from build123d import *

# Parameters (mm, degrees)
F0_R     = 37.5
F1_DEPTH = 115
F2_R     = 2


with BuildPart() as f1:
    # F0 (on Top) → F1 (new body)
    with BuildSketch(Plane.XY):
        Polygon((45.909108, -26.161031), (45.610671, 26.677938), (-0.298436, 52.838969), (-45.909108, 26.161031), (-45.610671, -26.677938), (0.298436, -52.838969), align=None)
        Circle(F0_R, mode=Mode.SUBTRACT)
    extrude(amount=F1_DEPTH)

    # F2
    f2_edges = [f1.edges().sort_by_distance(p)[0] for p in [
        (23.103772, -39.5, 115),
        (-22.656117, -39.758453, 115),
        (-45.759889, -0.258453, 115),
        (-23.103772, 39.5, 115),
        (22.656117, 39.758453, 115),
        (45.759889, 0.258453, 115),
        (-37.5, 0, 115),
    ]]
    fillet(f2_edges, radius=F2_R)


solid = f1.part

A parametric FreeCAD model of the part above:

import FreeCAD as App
import Part
import Sketcher
from FreeCAD import Vector


def edges_at(feature, points):
    """Names of the edges that pass closest to the given points."""
    edges = feature.Shape.Edges
    near = lambda p: min(range(len(edges)), key=lambda i: edges[i].distToShape(Part.Vertex(*p))[0])
    return sorted({f"Edge{near(p) + 1}" for p in points})

doc = App.newDocument("Part")
body = doc.addObject("PartDesign::Body", "Body")

sketch1 = doc.addObject("Sketcher::SketchObject", "Sketch")
body.addObject(sketch1)
sketch1.AttachmentSupport = (doc.XY_Plane, [""])
sketch1.MapMode = "FlatFace"
sketch1.addGeometry(Part.LineSegment(Vector(46, -26, 0), Vector(46, 27, 0)), False)
sketch1.addGeometry(Part.LineSegment(Vector(46, 27, 0), Vector(0, 53, 0)), False)
sketch1.addGeometry(Part.LineSegment(Vector(0, 53, 0), Vector(-46, 26, 0)), False)
sketch1.addGeometry(Part.LineSegment(Vector(-46, 26, 0), Vector(-46, -27, 0)), False)
sketch1.addGeometry(Part.LineSegment(Vector(-46, -27, 0), Vector(0, -53, 0)), False)
sketch1.addGeometry(Part.LineSegment(Vector(0, -53, 0), Vector(46, -26, 0)), False)
sketch1.addGeometry(Part.Circle(Vector(0, 0, 0), Vector(0, 0, 1), 38), False)
sketch1.addConstraint(Sketcher.Constraint("Coincident", 0, 2, 1, 1))
sketch1.addConstraint(Sketcher.Constraint("Coincident", 1, 2, 2, 1))
sketch1.addConstraint(Sketcher.Constraint("Coincident", 2, 2, 3, 1))
sketch1.addConstraint(Sketcher.Constraint("Coincident", 3, 2, 4, 1))
sketch1.addConstraint(Sketcher.Constraint("Coincident", 4, 2, 5, 1))
sketch1.addConstraint(Sketcher.Constraint("Coincident", 5, 2, 0, 1))
sketch1.addConstraint(Sketcher.Constraint("Coincident", 6, 3, -1, 1))
sketch1.addConstraint(Sketcher.Constraint("Symmetric", 0, 2, 3, 2, -1, 1))
sketch1.addConstraint(Sketcher.Constraint("Symmetric", 1, 2, 4, 2, -1, 1))
sketch1.addConstraint(Sketcher.Constraint("Symmetric", 2, 2, 5, 2, -1, 1))
sketch1.addConstraint(Sketcher.Constraint("Equal", 0, 1))
sketch1.addConstraint(Sketcher.Constraint("Equal", 1, 2))
sketch1.addConstraint(Sketcher.Constraint("Diameter", 6, 75.0))
sketch1.addConstraint(Sketcher.Constraint("DistanceY", 4, 2, 2, 2, 79.0))
sketch1.addConstraint(Sketcher.Constraint("Distance", 0, 52.839812))
sketch1.addConstraint(Sketcher.Constraint("DistanceX", -1, 1, 0, 2, 45.610671))
sketch1.addConstraint(Sketcher.Constraint("DistanceY", -1, 1, 0, 2, 26.677938))
pad1 = doc.addObject("PartDesign::Pad", "Pad")
body.addObject(pad1)
pad1.Profile = sketch1
pad1.Length = 115
doc.recompute()

fillet = doc.addObject("PartDesign::Fillet", "Fillet")
body.addObject(fillet)
fillet.Base = (pad1, edges_at(pad1, [
    (23.104, -39.5, 115),
    (-22.656, -39.758, 115),
    (-45.76, -0.258, 115),
    (-23.104, 39.5, 115),
    (22.656, 39.758, 115),
    (45.76, 0.258, 115),
    (-37.5, 0, 115),
]))
fillet.Radius = 2

doc.recompute()
